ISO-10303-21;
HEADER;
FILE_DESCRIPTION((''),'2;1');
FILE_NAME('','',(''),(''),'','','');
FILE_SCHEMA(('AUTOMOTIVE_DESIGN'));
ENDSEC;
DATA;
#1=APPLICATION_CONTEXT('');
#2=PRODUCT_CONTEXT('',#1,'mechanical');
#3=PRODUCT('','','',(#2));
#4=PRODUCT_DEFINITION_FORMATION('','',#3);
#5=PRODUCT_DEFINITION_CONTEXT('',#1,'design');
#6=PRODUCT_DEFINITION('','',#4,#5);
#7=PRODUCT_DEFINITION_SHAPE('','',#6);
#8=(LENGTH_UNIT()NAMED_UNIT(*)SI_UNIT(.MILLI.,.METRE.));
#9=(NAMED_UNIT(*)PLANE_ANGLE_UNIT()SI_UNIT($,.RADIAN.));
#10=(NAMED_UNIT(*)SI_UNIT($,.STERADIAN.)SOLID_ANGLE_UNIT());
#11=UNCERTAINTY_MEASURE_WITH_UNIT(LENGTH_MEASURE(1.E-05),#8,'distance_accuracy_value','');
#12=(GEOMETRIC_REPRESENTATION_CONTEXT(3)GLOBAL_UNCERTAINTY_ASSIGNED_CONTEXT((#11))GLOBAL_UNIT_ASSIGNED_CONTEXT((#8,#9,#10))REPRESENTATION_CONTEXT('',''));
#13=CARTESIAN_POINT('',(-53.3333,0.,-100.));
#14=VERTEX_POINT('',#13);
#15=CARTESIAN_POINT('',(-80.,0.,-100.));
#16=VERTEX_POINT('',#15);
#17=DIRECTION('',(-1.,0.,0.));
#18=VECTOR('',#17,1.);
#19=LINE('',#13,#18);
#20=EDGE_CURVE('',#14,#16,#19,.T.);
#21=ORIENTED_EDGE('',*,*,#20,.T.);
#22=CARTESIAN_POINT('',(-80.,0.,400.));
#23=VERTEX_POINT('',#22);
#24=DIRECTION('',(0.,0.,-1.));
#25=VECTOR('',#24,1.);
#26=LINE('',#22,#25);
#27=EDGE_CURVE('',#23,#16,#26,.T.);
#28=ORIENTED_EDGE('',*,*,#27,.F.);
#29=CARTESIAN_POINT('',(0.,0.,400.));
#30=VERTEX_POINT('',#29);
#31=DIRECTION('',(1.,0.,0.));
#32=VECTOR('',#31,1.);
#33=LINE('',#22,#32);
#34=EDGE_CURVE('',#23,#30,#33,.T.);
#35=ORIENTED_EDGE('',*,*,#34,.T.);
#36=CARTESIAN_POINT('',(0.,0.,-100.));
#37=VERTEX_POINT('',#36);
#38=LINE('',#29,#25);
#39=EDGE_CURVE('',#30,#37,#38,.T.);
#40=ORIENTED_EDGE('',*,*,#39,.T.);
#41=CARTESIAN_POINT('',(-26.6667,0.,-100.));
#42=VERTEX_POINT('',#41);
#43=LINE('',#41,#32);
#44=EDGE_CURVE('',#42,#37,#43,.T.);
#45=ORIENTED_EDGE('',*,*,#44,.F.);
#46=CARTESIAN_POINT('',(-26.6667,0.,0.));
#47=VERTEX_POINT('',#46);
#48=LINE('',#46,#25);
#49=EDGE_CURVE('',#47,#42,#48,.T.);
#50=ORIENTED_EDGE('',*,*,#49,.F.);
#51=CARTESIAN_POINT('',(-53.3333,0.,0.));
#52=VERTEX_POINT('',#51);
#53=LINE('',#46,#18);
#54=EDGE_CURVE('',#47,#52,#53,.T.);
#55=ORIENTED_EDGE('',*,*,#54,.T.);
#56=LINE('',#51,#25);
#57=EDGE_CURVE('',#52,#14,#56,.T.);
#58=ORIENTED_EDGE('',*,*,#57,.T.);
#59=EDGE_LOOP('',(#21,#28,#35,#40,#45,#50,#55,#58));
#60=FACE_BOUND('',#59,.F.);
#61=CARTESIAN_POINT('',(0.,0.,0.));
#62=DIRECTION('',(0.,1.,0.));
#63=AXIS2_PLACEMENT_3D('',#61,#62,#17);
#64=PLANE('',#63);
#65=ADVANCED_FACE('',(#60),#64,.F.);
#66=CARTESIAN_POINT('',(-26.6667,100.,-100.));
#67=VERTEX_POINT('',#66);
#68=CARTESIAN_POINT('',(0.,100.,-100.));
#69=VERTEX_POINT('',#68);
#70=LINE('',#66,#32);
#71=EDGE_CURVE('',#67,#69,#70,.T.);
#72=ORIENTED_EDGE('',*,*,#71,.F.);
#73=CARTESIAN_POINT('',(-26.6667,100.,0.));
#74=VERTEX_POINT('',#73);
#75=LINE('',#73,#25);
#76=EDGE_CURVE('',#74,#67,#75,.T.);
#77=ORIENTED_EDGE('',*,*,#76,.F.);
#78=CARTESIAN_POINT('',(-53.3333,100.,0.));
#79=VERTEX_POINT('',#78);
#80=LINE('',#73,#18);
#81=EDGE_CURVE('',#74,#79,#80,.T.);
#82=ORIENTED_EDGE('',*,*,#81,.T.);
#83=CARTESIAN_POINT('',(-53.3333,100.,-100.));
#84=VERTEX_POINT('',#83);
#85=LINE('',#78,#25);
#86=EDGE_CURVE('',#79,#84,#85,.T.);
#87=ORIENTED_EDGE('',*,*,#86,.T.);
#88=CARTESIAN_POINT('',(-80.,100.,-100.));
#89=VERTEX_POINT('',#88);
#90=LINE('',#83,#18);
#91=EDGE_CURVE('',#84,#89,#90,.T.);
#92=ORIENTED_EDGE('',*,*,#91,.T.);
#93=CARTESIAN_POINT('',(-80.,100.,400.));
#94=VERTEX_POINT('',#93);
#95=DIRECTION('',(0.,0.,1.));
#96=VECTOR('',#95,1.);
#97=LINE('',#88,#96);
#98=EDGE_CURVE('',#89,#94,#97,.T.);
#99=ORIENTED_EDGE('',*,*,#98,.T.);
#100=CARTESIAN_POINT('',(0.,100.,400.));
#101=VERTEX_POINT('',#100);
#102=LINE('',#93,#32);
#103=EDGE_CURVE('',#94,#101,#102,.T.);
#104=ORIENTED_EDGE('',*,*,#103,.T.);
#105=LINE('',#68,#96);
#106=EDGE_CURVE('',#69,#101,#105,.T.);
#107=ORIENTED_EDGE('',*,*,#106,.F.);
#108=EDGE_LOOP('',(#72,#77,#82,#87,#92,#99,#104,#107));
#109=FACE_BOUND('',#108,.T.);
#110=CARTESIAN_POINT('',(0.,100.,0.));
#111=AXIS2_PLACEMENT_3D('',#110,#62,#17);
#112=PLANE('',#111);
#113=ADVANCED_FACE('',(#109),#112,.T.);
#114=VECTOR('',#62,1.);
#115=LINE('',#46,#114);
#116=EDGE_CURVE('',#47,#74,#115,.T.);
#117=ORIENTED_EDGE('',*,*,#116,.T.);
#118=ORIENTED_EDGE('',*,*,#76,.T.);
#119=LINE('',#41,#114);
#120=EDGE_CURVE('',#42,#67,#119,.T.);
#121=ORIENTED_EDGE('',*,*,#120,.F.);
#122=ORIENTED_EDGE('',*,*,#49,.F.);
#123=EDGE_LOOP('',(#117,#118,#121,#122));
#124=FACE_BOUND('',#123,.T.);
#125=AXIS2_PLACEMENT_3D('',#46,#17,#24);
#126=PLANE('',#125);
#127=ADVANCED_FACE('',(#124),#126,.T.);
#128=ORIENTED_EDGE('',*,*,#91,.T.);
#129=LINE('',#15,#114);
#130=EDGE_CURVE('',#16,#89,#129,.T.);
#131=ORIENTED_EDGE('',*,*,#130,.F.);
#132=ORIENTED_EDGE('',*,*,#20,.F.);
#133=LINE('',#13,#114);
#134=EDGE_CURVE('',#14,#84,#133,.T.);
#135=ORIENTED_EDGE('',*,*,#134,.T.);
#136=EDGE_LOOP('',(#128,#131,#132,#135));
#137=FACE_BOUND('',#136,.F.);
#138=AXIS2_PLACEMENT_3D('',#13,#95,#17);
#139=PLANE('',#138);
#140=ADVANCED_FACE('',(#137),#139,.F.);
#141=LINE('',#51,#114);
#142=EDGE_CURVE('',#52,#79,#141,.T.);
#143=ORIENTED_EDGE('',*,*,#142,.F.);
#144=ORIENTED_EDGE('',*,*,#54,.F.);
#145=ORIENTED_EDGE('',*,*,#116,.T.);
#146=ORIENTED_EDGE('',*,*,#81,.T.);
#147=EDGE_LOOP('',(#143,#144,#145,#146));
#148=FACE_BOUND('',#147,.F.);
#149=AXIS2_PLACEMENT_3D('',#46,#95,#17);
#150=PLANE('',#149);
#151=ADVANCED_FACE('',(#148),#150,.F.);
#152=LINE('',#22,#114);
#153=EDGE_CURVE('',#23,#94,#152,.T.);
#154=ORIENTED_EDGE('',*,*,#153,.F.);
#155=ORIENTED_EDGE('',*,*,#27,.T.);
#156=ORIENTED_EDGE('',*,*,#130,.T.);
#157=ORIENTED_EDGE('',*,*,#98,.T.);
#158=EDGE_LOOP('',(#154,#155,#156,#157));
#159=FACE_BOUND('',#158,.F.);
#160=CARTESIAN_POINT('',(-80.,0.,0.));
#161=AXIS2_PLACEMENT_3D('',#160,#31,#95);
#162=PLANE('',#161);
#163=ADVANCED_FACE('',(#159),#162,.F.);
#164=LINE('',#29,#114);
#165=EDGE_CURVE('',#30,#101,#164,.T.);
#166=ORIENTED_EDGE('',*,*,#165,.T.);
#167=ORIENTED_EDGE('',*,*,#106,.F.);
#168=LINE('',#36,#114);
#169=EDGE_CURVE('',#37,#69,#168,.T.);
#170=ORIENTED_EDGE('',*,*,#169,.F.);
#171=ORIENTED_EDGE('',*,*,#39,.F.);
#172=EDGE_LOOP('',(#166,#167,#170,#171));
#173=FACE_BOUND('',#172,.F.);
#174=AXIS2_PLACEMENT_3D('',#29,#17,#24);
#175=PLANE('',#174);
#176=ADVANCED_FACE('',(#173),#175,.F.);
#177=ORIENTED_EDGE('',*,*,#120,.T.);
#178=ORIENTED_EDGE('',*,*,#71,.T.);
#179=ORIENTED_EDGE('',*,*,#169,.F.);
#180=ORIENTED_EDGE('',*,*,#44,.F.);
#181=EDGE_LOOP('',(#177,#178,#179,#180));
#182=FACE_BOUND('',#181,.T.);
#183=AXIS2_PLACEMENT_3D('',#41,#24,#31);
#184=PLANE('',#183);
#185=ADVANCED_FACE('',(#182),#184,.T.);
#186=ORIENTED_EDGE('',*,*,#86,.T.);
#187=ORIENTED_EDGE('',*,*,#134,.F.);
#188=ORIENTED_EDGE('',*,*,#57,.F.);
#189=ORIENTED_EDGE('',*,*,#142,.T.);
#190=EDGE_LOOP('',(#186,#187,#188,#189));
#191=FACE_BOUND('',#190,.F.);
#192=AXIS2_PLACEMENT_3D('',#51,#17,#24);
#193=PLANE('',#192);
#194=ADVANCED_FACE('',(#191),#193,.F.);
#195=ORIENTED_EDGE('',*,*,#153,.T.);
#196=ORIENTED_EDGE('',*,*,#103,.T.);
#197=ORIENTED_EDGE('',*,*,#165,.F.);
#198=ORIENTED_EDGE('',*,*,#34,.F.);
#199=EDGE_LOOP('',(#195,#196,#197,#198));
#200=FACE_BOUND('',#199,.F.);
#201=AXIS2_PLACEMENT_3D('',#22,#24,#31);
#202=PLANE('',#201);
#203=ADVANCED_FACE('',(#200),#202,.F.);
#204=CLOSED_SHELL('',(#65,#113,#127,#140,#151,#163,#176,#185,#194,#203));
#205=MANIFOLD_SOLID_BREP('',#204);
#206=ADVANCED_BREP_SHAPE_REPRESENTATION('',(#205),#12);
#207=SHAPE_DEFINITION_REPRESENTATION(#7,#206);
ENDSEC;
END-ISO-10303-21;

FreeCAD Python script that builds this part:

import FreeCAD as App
import Part
import Sketcher

V = App.Vector
Q = App.Units.Quantity


def add_polygon(sketch, points):
    """Adds a closed chain of lines whose ends are joined by coincident constraints."""
    first, n = sketch.GeometryCount, len(points)
    for a, b in zip(points, points[1:] + points[:1]):
        sketch.addGeometry(Part.LineSegment(App.Vector(*a, 0), App.Vector(*b, 0)), False)
    for i in range(n):
        sketch.addConstraint(Sketcher.Constraint("Coincident", first + i, 2, first + (i + 1) % n, 1))

doc = App.newDocument("Part")
body = doc.addObject("PartDesign::Body", "Body")

# Sketch on XZ plane
sketch1 = doc.addObject("Sketcher::SketchObject", "Sketch")
body.addObject(sketch1)
sketch1.AttachmentSupport = (doc.XZ_Plane, [""])
sketch1.MapMode = "FlatFace"
add_polygon(sketch1, [(0, 400), (0, -100), (-27, -100), (-27, 0), (-53, 0), (-53, -100), (-80, -100), (-80, 400)])  # lines 0-7
sketch1.addConstraint([
    Sketcher.Constraint("Vertical", 0),
    Sketcher.Constraint("Horizontal", 1),
    Sketcher.Constraint("Vertical", 2),
    Sketcher.Constraint("Horizontal", 3),
    Sketcher.Constraint("Vertical", 4),
    Sketcher.Constraint("Horizontal", 5),
    Sketcher.Constraint("Vertical", 6),
    Sketcher.Constraint("Horizontal", 7),
    Sketcher.Constraint("PointOnObject", 0, 2, -2),
    Sketcher.Constraint("PointOnObject", 2, 2, -1),
    Sketcher.Constraint("Horizontal", 1, 2, 4, 2),
    Sketcher.Constraint("Equal", 1, 3),
    Sketcher.Constraint("Equal", 3, 5),
    Sketcher.Constraint("DistanceX", 7, 1, 7, 2, Q("80 mm")),
    Sketcher.Constraint("DistanceY", 2, 1, 2, 2, Q("100 mm")),
    Sketcher.Constraint("DistanceY", -1, 1, 6, 2, Q("400 mm")),
])
pad1 = doc.addObject("PartDesign::Pad", "Pad")
body.addObject(pad1)
pad1.Profile = sketch1
pad1.Length = 100
pad1.Reversed = True

doc.recompute()
